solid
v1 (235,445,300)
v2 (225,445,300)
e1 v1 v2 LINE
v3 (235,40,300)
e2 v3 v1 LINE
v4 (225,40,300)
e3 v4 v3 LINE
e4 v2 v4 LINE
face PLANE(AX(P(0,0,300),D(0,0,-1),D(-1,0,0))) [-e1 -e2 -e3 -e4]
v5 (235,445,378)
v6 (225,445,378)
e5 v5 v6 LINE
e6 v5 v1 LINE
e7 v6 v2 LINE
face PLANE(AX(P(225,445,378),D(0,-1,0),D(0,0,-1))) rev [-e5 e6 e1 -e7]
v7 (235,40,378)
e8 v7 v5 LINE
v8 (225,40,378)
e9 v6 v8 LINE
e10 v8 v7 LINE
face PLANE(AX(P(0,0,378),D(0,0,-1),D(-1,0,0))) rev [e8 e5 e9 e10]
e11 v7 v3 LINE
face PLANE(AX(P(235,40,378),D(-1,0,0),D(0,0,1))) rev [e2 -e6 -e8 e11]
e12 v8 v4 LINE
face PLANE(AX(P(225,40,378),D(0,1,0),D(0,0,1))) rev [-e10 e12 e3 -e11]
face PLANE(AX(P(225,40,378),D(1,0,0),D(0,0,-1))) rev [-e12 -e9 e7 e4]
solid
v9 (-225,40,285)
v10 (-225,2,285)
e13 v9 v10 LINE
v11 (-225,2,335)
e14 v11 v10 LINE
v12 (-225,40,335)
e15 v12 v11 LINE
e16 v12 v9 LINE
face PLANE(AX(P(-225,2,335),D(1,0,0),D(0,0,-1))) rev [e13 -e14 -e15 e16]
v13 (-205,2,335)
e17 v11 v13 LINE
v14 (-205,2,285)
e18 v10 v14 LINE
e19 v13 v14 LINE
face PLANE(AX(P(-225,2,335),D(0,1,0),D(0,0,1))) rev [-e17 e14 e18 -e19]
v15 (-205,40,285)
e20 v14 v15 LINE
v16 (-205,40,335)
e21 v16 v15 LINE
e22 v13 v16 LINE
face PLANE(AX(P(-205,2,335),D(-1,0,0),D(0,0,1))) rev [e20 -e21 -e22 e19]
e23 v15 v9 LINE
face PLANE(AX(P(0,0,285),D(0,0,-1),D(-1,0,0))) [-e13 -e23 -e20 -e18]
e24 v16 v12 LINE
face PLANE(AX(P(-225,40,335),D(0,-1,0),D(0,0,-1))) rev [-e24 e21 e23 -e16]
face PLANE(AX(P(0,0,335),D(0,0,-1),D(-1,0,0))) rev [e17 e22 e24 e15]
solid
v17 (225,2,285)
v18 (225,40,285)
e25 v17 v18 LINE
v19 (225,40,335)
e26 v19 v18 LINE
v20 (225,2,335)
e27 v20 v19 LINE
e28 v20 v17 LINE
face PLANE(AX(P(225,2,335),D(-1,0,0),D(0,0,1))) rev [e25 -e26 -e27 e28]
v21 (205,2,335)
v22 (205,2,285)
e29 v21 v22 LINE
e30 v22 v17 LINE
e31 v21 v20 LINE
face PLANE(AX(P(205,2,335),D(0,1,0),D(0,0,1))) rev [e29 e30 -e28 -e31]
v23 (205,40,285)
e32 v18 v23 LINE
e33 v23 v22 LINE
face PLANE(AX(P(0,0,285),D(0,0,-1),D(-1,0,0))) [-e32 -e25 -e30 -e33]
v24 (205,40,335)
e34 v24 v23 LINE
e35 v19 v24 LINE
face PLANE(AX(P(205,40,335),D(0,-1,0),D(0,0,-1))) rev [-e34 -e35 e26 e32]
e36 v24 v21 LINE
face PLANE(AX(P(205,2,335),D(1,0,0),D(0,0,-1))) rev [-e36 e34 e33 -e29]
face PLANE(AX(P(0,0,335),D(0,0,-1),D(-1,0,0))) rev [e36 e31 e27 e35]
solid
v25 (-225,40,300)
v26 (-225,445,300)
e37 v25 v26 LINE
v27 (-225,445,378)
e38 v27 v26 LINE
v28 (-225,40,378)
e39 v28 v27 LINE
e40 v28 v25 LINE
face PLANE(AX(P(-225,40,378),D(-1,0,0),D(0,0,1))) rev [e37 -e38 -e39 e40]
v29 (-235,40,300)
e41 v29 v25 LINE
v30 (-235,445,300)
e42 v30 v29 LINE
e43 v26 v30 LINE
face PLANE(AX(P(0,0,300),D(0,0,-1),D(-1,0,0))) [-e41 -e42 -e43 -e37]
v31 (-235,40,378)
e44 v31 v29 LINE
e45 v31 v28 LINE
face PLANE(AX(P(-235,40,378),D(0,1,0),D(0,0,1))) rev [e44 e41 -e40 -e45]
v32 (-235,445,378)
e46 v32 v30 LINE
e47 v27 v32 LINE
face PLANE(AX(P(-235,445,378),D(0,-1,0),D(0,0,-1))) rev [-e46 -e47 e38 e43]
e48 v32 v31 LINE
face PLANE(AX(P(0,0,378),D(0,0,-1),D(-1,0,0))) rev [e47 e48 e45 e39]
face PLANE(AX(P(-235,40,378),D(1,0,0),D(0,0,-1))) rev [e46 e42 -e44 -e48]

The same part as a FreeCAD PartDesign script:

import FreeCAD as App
import Part
import Sketcher

V = App.Vector
Q = App.Units.Quantity

doc = App.newDocument("Part")
body = doc.addObject("PartDesign::Body", "Body")

# Sketch on XY plane
sketch1 = doc.addObject("Sketcher::SketchObject", "Sketch")
body.addObject(sketch1)
sketch1.AttachmentSupport = (doc.XY_Plane, [""])
sketch1.MapMode = "FlatFace"
sketch1.AttachmentOffset = App.Placement(V(0, 0, 300), App.Rotation())
sketch1.addGeometry(Part.LineSegment(V(-235, 445, 0), V(-235, 40, 0)), False)
sketch1.addGeometry(Part.LineSegment(V(-235, 40, 0), V(-225, 40, 0)), False)
sketch1.addGeometry(Part.LineSegment(V(-225, 40, 0), V(-225, 445, 0)), False)
sketch1.addGeometry(Part.LineSegment(V(-225, 445, 0), V(-235, 445, 0)), False)
sketch1.addConstraint(Sketcher.Constraint("Coincident", 0, 2, 1, 1))
sketch1.addConstraint(Sketcher.Constraint("Coincident", 1, 2, 2, 1))
sketch1.addConstraint(Sketcher.Constraint("Coincident", 2, 2, 3, 1))
sketch1.addConstraint(Sketcher.Constraint("Coincident", 3, 2, 0, 1))
sketch1.addConstraint(Sketcher.Constraint("Vertical", 0))
sketch1.addConstraint(Sketcher.Constraint("Horizontal", 1))
sketch1.addConstraint(Sketcher.Constraint("Vertical", 2))
sketch1.addConstraint(Sketcher.Constraint("Horizontal", 3))
sketch1.addConstraint(Sketcher.Constraint("DistanceX", 1, 1, 1, 2, Q("10 mm")))
sketch1.addConstraint(Sketcher.Constraint("DistanceY", 0, 2, 0, 1, Q("405 mm")))
sketch1.addConstraint(Sketcher.Constraint("DistanceX", 0, 2, -1, 1, Q("235 mm")))
sketch1.addConstraint(Sketcher.Constraint("DistanceY", -1, 1, 0, 2, Q("40 mm")))
pad1 = doc.addObject("PartDesign::Pad", "Pad")
body.addObject(pad1)
pad1.Profile = sketch1
pad1.Length = 78
body2 = doc.addObject("PartDesign::Body", "Body001")

# Sketch on XY plane
sketch2 = doc.addObject("Sketcher::SketchObject", "Sketch001")
body2.addObject(sketch2)
sketch2.AttachmentSupport = (doc.getObject("XY_Plane001"), [""])
sketch2.MapMode = "FlatFace"
sketch2.AttachmentOffset = App.Placement(V(0, 0, 300), App.Rotation())
sketch2.addGeometry(Part.LineSegment(V(225, 445, 0), V(225, 40, 0)), False)
sketch2.addGeometry(Part.LineSegment(V(225, 40, 0), V(235, 40, 0)), False)
sketch2.addGeometry(Part.LineSegment(V(235, 40, 0), V(235, 445, 0)), False)
sketch2.addGeometry(Part.LineSegment(V(235, 445, 0), V(225, 445, 0)), False)
sketch2.addConstraint(Sketcher.Constraint("Coincident", 0, 2, 1, 1))
sketch2.addConstraint(Sketcher.Constraint("Coincident", 1, 2, 2, 1))
sketch2.addConstraint(Sketcher.Constraint("Coincident", 2, 2, 3, 1))
sketch2.addConstraint(Sketcher.Constraint("Coincident", 3, 2, 0, 1))
sketch2.addConstraint(Sketcher.Constraint("Vertical", 0))
sketch2.addConstraint(Sketcher.Constraint("Horizontal", 1))
sketch2.addConstraint(Sketcher.Constraint("Vertical", 2))
sketch2.addConstraint(Sketcher.Constraint("Horizontal", 3))
sketch2.addConstraint(Sketcher.Constraint("DistanceX", 1, 1, 1, 2, Q("10 mm")))
sketch2.addConstraint(Sketcher.Constraint("DistanceY", 0, 2, 0, 1, Q("405 mm")))
sketch2.addConstraint(Sketcher.Constraint("DistanceX", -1, 1, 0, 2, Q("225 mm")))
sketch2.addConstraint(Sketcher.Constraint("DistanceY", -1, 1, 0, 2, Q("40 mm")))
pad2 = doc.addObject("PartDesign::Pad", "Pad001")
body2.addObject(pad2)
pad2.Profile = sketch2
pad2.Length = 78
body3 = doc.addObject("PartDesign::Body", "Body002")

# Sketch on XY plane
sketch3 = doc.addObject("Sketcher::SketchObject", "Sketch002")
body3.addObject(sketch3)
sketch3.AttachmentSupport = (doc.getObject("XY_Plane002"), [""])
sketch3.MapMode = "FlatFace"
sketch3.AttachmentOffset = App.Placement(V(0, 0, 285), App.Rotation())
sketch3.addGeometry(Part.LineSegment(V(-225, 40, 0), V(-225, 2, 0)), False)
sketch3.addGeometry(Part.LineSegment(V(-225, 2, 0), V(-205, 2, 0)), False)
sketch3.addGeometry(Part.LineSegment(V(-205, 2, 0), V(-205, 40, 0)), False)
sketch3.addGeometry(Part.LineSegment(V(-205, 40, 0), V(-225, 40, 0)), False)
sketch3.addConstraint(Sketcher.Constraint("Coincident", 0, 2, 1, 1))
sketch3.addConstraint(Sketcher.Constraint("Coincident", 1, 2, 2, 1))
sketch3.addConstraint(Sketcher.Constraint("Coincident", 2, 2, 3, 1))
sketch3.addConstraint(Sketcher.Constraint("Coincident", 3, 2, 0, 1))
sketch3.addConstraint(Sketcher.Constraint("Vertical", 0))
sketch3.addConstraint(Sketcher.Constraint("Horizontal", 1))
sketch3.addConstraint(Sketcher.Constraint("Vertical", 2))
sketch3.addConstraint(Sketcher.Constraint("Horizontal", 3))
sketch3.addConstraint(Sketcher.Constraint("DistanceX", 1, 1, 1, 2, Q("20 mm")))
sketch3.addConstraint(Sketcher.Constraint("DistanceY", 0, 2, 0, 1, Q("38 mm")))
sketch3.addConstraint(Sketcher.Constraint("DistanceX", 0, 2, -1, 1, Q("225 mm")))
sketch3.addConstraint(Sketcher.Constraint("DistanceY", -1, 1, 0, 2, Q("2 mm")))
pad3 = doc.addObject("PartDesign::Pad", "Pad002")
body3.addObject(pad3)
pad3.Profile = sketch3
pad3.Length = 50
body4 = doc.addObject("PartDesign::Body", "Body003")

# Sketch on XY plane
sketch4 = doc.addObject("Sketcher::SketchObject", "Sketch003")
body4.addObject(sketch4)
sketch4.AttachmentSupport = (doc.getObject("XY_Plane003"), [""])
sketch4.MapMode = "FlatFace"
sketch4.AttachmentOffset = App.Placement(V(0, 0, 285), App.Rotation())
sketch4.addGeometry(Part.LineSegment(V(205, 40, 0), V(205, 2, 0)), False)
sketch4.addGeometry(Part.LineSegment(V(205, 2, 0), V(225, 2, 0)), False)
sketch4.addGeometry(Part.LineSegment(V(225, 2, 0), V(225, 40, 0)), False)
sketch4.addGeometry(Part.LineSegment(V(225, 40, 0), V(205, 40, 0)), False)
sketch4.addConstraint(Sketcher.Constraint("Coincident", 0, 2, 1, 1))
sketch4.addConstraint(Sketcher.Constraint("Coincident", 1, 2, 2, 1))
sketch4.addConstraint(Sketcher.Constraint("Coincident", 2, 2, 3, 1))
sketch4.addConstraint(Sketcher.Constraint("Coincident", 3, 2, 0, 1))
sketch4.addConstraint(Sketcher.Constraint("Vertical", 0))
sketch4.addConstraint(Sketcher.Constraint("Horizontal", 1))
sketch4.addConstraint(Sketcher.Constraint("Vertical", 2))
sketch4.addConstraint(Sketcher.Constraint("Horizontal", 3))
sketch4.addConstraint(Sketcher.Constraint("DistanceX", 1, 1, 1, 2, Q("20 mm")))
sketch4.addConstraint(Sketcher.Constraint("DistanceY", 0, 2, 0, 1, Q("38 mm")))
sketch4.addConstraint(Sketcher.Constraint("DistanceX", -1, 1, 0, 2, Q("205 mm")))
sketch4.addConstraint(Sketcher.Constraint("DistanceY", -1, 1, 0, 2, Q("2 mm")))
pad4 = doc.addObject("PartDesign::Pad", "Pad003")
body4.addObject(pad4)
pad4.Profile = sketch4
pad4.Length = 50

doc.recompute()
